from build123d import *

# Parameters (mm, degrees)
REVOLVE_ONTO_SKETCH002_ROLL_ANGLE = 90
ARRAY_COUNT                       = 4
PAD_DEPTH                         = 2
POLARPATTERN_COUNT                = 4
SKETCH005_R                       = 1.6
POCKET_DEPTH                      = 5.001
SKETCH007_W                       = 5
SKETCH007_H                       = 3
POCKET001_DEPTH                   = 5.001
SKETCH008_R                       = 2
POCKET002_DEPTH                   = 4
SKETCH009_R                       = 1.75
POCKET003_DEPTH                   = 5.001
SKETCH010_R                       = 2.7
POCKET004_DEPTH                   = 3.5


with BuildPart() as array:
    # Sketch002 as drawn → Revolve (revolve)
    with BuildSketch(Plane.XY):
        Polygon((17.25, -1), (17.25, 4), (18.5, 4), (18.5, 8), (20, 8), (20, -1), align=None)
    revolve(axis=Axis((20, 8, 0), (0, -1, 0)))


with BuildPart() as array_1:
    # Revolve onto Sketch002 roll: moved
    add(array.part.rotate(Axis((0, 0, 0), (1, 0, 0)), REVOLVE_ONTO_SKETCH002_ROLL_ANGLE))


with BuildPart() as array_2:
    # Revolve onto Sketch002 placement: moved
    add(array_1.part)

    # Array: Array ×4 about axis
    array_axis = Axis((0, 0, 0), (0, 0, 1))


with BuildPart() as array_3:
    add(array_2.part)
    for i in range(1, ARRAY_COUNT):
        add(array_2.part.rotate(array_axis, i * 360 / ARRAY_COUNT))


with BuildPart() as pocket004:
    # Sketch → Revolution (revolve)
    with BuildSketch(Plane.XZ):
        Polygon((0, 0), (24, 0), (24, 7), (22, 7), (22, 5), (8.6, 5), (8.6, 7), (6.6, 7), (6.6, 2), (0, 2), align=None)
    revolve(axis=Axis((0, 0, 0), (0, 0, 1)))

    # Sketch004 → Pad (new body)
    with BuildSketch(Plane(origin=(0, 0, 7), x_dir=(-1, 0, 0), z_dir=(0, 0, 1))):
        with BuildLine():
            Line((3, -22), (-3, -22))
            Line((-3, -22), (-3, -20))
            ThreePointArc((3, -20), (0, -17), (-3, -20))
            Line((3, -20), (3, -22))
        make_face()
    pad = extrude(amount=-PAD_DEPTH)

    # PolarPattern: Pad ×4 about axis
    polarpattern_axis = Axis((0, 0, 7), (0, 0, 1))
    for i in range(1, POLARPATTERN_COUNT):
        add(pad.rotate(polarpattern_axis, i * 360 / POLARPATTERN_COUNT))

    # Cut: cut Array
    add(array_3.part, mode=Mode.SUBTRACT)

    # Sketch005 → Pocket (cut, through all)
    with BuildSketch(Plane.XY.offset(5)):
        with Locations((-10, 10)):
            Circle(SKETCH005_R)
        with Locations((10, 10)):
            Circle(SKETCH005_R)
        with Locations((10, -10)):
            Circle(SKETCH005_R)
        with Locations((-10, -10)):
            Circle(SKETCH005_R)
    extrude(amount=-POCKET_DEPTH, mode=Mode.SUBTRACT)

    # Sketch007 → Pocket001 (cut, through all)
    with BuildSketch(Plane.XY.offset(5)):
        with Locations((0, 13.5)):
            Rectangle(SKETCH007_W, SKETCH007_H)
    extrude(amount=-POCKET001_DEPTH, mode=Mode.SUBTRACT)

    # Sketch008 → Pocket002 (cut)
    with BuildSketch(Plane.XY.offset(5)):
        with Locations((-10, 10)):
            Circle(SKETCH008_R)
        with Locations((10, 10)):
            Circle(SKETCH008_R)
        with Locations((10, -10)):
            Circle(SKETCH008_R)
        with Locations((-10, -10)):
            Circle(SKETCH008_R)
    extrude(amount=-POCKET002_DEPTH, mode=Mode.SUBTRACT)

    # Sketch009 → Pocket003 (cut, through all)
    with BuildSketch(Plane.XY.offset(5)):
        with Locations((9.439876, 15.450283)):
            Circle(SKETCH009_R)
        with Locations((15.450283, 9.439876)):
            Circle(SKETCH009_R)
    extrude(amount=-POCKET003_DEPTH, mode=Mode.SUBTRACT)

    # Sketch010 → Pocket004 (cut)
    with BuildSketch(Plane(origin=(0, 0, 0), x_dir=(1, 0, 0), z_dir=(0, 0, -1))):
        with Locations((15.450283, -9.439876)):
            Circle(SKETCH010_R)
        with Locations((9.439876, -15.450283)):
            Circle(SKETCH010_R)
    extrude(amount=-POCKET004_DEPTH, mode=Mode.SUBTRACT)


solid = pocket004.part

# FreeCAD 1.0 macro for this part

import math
import FreeCAD as App
import Part
import Sketcher


def add_polygon(sketch, points):
    """Adds a closed chain of lines whose ends are joined by coincident constraints."""
    first, n = sketch.GeometryCount, len(points)
    for a, b in zip(points, points[1:] + points[:1]):
        sketch.addGeometry(Part.LineSegment(App.Vector(*a, 0), App.Vector(*b, 0)), False)
    for i in range(n):
        sketch.addConstraint(Sketcher.Constraint("Coincident", first + i, 2, first + (i + 1) % n, 1))

doc = App.newDocument("Part")
params = doc.addObject("Spreadsheet::Sheet", "Params")
for row, (alias, value) in enumerate([
    ("sketch1_height", "5 mm"),
    ("sketch1_height2", "9 mm"),
    ("sketch1_width", "1.5 mm"),
    ("sketch1_width2", "2.75 mm"),
    ("revolution_angle", "360 deg"),
    ("sketch2_width", "24 mm"),
    ("sketch2_width2", "2 mm"),
    ("sketch2_height", "7 mm"),
    ("sketch2_width3", "13.4 mm"),
    ("revolution2_angle", "360 deg"),
    ("sketch3_radius", "3 mm"),
    ("sketch3_height", "2 mm"),
    ("pad1_length", "2 mm"),
    ("sketch4_diameter", "3.2 mm"),
    ("sketch5_width", "5 mm"),
    ("sketch5_height", "3 mm"),
    ("sketch6_diameter", "4 mm"),
    ("pocket3_length", "4 mm"),
    ("sketch7_diameter", "3.5 mm"),
    ("sketch8_diameter", "5.4 mm"),
    ("pocket5_length", "3.5 mm"),
], start=1):
    params.set(f"A{row}", alias)
    params.set(f"B{row}", "=" + value)
    params.setAlias(f"B{row}", alias)

body = doc.addObject("PartDesign::Body", "Body")

# Sketch on XY plane
sketch1 = body.newObject("Sketcher::SketchObject", "Sketch")
sketch1.AttachmentSupport = (doc.getObject("XY_Plane"), [""])
sketch1.MapMode = "FlatFace"
add_polygon(sketch1, [(17.25, 4), (17.25, -1), (20, -1), (20, 8), (18.5, 8), (18.5, 4)])  # lines 0-5
sketch1.addGeometry(Part.LineSegment(App.Vector(20, 8, 0), App.Vector(20, -1, 0)), True)  # axis
sketch1.addConstraint(Sketcher.Constraint("Vertical", 0))
sketch1.addConstraint(Sketcher.Constraint("Horizontal", 1))
sketch1.addConstraint(Sketcher.Constraint("Vertical", 2))
sketch1.addConstraint(Sketcher.Constraint("Horizontal", 3))
sketch1.addConstraint(Sketcher.Constraint("Vertical", 4))
sketch1.addConstraint(Sketcher.Constraint("Horizontal", 5))
sketch1.addConstraint(Sketcher.Constraint("Vertical", 6))
sketch1.addConstraint(Sketcher.Constraint("Coincident", 6, 1, 2, 2))
sketch1.addConstraint(Sketcher.Constraint("Horizontal", 0, 2, 6, 2))
sketch1.addConstraint(Sketcher.Constraint("DistanceY", 0, 2, 0, 1, 5.0))
sketch1.addConstraint(Sketcher.Constraint("DistanceY", 2, 1, 2, 2, 9.0))
sketch1.addConstraint(Sketcher.Constraint("DistanceX", 3, 2, 3, 1, 1.5))
sketch1.addConstraint(Sketcher.Constraint("DistanceY", 0, 2, -1, 1, 1.0))
sketch1.addConstraint(Sketcher.Constraint("DistanceX", -1, 1, 1, 2, 20.0))
sketch1.addConstraint(Sketcher.Constraint("DistanceX", 1, 1, 1, 2, 2.75))
sketch1.setExpression("Constraints[15]", "Params.sketch1_height")
sketch1.setExpression("Constraints[16]", "Params.sketch1_height2")
sketch1.setExpression("Constraints[17]", "Params.sketch1_width")
sketch1.setExpression("Constraints[20]", "Params.sketch1_width2")
revolution = body.newObject("PartDesign::Revolution", "Revolution")
revolution.Profile = sketch1
revolution.ReferenceAxis = (sketch1, ["Axis0"])
revolution.setExpression("Angle", "Params.revolution_angle")
body2 = doc.addObject("PartDesign::Body", "Body001")
doc.recompute()

body.Placement = App.Placement(App.Vector(0, 0, 0), App.Rotation(App.Vector(1, 0, 0), 90))
boolean = body2.newObject("PartDesign::Boolean", "Boolean")
boolean.Type = "Fuse"
boolean.addObjects([body])
body3 = doc.addObject("PartDesign::Body", "Body002")
body3.AllowCompound = True
doc.recompute()

body3.BaseFeature = body2
doc.recompute()

body4 = doc.addObject("PartDesign::Body", "Body003")
body4.BaseFeature = body2
body4.Placement = App.Placement(App.Vector(0, 0, 0), App.Rotation(App.Vector(0, 0, 1), 90))
boolean2 = body3.newObject("PartDesign::Boolean", "Boolean001")
boolean2.Type = "Fuse"
boolean2.addObjects([body4])
doc.recompute()

body5 = doc.addObject("PartDesign::Body", "Body004")
body5.BaseFeature = body2
body5.Placement = App.Placement(App.Vector(0, 0, 0), App.Rotation(App.Vector(0, 0, 1), 180))
boolean3 = body3.newObject("PartDesign::Boolean", "Boolean002")
boolean3.Type = "Fuse"
boolean3.addObjects([body5])
doc.recompute()

body2.Placement = App.Placement(App.Vector(0, 0, 0), App.Rotation(App.Vector(0, 0, 1), 270))
boolean4 = body3.newObject("PartDesign::Boolean", "Boolean003")
boolean4.Type = "Fuse"
boolean4.addObjects([body2])
body6 = doc.addObject("PartDesign::Body", "Body005")

# Sketch on XZ plane
sketch2 = body6.newObject("Sketcher::SketchObject", "Sketch001")
sketch2.AttachmentSupport = (doc.getObject("XZ_Plane005"), [""])
sketch2.MapMode = "FlatFace"
add_polygon(sketch2, [(0, 0), (24, 0), (24, 7), (22, 7), (22, 5), (8.6, 5), (8.6, 7), (6.6, 7), (6.6, 2), (0, 2)])  # lines 0-9
sketch2.addConstraint(Sketcher.Constraint("Horizontal", 0))
sketch2.addConstraint(Sketcher.Constraint("Vertical", 1))
sketch2.addConstraint(Sketcher.Constraint("Horizontal", 2))
sketch2.addConstraint(Sketcher.Constraint("Vertical", 3))
sketch2.addConstraint(Sketcher.Constraint("Horizontal", 4))
sketch2.addConstraint(Sketcher.Constraint("Vertical", 5))
sketch2.addConstraint(Sketcher.Constraint("Horizontal", 6))
sketch2.addConstraint(Sketcher.Constraint("Vertical", 7))
sketch2.addConstraint(Sketcher.Constraint("Horizontal", 8))
sketch2.addConstraint(Sketcher.Constraint("Vertical", 9))
sketch2.addConstraint(Sketcher.Constraint("Coincident", 9, 2, -1, 1))
sketch2.addConstraint(Sketcher.Constraint("Horizontal", 2, 2, 5, 2))
sketch2.addConstraint(Sketcher.Constraint("Equal", 2, 6))
sketch2.addConstraint(Sketcher.Constraint("Equal", 6, 3))
sketch2.addConstraint(Sketcher.Constraint("Equal", 5, 9))
sketch2.addConstraint(Sketcher.Constraint("DistanceX", 0, 1, 0, 2, 24.0))
sketch2.addConstraint(Sketcher.Constraint("DistanceX", 2, 2, 2, 1, 2.0))
sketch2.addConstraint(Sketcher.Constraint("DistanceY", 1, 1, 1, 2, 7.0))
sketch2.addConstraint(Sketcher.Constraint("DistanceX", 4, 2, 4, 1, 13.4))
sketch2.setExpression("Constraints[25]", "Params.sketch2_width")
sketch2.setExpression("Constraints[26]", "Params.sketch2_width2")
sketch2.setExpression("Constraints[27]", "Params.sketch2_height")
sketch2.setExpression("Constraints[28]", "Params.sketch2_width3")
revolution2 = body6.newObject("PartDesign::Revolution", "Revolution001")
revolution2.Profile = sketch2
revolution2.ReferenceAxis = (sketch2, ["V_Axis"])
revolution2.setExpression("Angle", "Params.revolution2_angle")

# Sketch on XY plane
sketch3 = body6.newObject("Sketcher::SketchObject", "Sketch002")
sketch3.AttachmentSupport = (doc.getObject("XY_Plane005"), [""])
sketch3.MapMode = "FlatFace"
sketch3.AttachmentOffset = App.Placement(App.Vector(0, 0, 7), App.Rotation())
sketch3.addGeometry(Part.LineSegment(App.Vector(3, 22, 0), App.Vector(-3, 22, 0)), False)
sketch3.addGeometry(Part.LineSegment(App.Vector(-3, 22, 0), App.Vector(-3, 20, 0)), False)
sketch3.addGeometry(Part.ArcOfCircle(Part.Circle(App.Vector(0, 20, 0), App.Vector(0, 0, 1), 3), math.radians(180), math.radians(360)), False)
sketch3.addGeometry(Part.LineSegment(App.Vector(3, 20, 0), App.Vector(3, 22, 0)), False)
sketch3.addConstraint(Sketcher.Constraint("Coincident", 0, 2, 1, 1))
sketch3.addConstraint(Sketcher.Constraint("Tangent", 1, 2, 2, 1))
sketch3.addConstraint(Sketcher.Constraint("Tangent", 2, 2, 3, 1))
sketch3.addConstraint(Sketcher.Constraint("Coincident", 3, 2, 0, 1))
sketch3.addConstraint(Sketcher.Constraint("Horizontal", 0))
sketch3.addConstraint(Sketcher.Constraint("Vertical", 1))
sketch3.addConstraint(Sketcher.Constraint("Vertical", 3))
sketch3.addConstraint(Sketcher.Constraint("PointOnObject", 2, 3, -2))
sketch3.addConstraint(Sketcher.Constraint("Radius", 2, 3.0))
sketch3.addConstraint(Sketcher.Constraint("DistanceY", 1, 2, 1, 1, 2.0))
sketch3.addConstraint(Sketcher.Constraint("DistanceY", -1, 1, 2, 3, 20.0))
sketch3.setExpression("Constraints[8]", "Params.sketch3_radius")
sketch3.setExpression("Constraints[9]", "Params.sketch3_height")
pad1 = body6.newObject("PartDesign::Pad", "Pad")
pad1.Profile = sketch3
pad1.setExpression("Length", "Params.pad1_length")
pad1.Reversed = True
doc.recompute()

polarpattern = body6.newObject("PartDesign::PolarPattern", "PolarPattern")
polarpattern.Originals = [pad1]
polarpattern.Axis = (doc.getObject("Z_Axis005"), [""])
polarpattern.Angle = 360
polarpattern.Occurrences = 4
body6.Tip = polarpattern
doc.recompute()

boolean5 = body6.newObject("PartDesign::Boolean", "Boolean004")
boolean5.Type = "Cut"
boolean5.addObjects([body3])

# Sketch on XY plane
sketch4 = body6.newObject("Sketcher::SketchObject", "Sketch003")
sketch4.AttachmentSupport = (doc.getObject("XY_Plane005"), [""])
sketch4.MapMode = "FlatFace"
sketch4.AttachmentOffset = App.Placement(App.Vector(0, 0, 5), App.Rotation())
sketch4.addGeometry(Part.Circle(App.Vector(-10, 10, 0), App.Vector(0, 0, 1), 1.6), False)
sketch4.addGeometry(Part.Circle(App.Vector(10, 10, 0), App.Vector(0, 0, 1), 1.6), False)
sketch4.addGeometry(Part.Circle(App.Vector(10, -10, 0), App.Vector(0, 0, 1), 1.6), False)
sketch4.addGeometry(Part.Circle(App.Vector(-10, -10, 0), App.Vector(0, 0, 1), 1.6), False)
sketch4.addConstraint(Sketcher.Constraint("Equal", 0, 1))
sketch4.addConstraint(Sketcher.Constraint("Equal", 1, 2))
sketch4.addConstraint(Sketcher.Constraint("Equal", 2, 3))
sketch4.addConstraint(Sketcher.Constraint("Symmetric", 0, 3, 2, 3, -1, 1))
sketch4.addConstraint(Sketcher.Constraint("Symmetric", 1, 3, 3, 3, -1, 1))
sketch4.addConstraint(Sketcher.Constraint("Symmetric", 0, 3, 1, 3, -2))
sketch4.addConstraint(Sketcher.Constraint("Diameter", 0, 3.2))
sketch4.addConstraint(Sketcher.Constraint("DistanceX", 0, 3, -1, 1, 10.0))
sketch4.addConstraint(Sketcher.Constraint("DistanceY", -1, 1, 0, 3, 10.0))
sketch4.setExpression("Constraints[6]", "Params.sketch4_diameter")
pocket1 = body6.newObject("PartDesign::Pocket", "Pocket")
pocket1.Profile = sketch4
pocket1.Type = "ThroughAll"

# Sketch on XY plane
sketch5 = body6.newObject("Sketcher::SketchObject", "Sketch004")
sketch5.AttachmentSupport = (doc.getObject("XY_Plane005"), [""])
sketch5.MapMode = "FlatFace"
sketch5.AttachmentOffset = App.Placement(App.Vector(0, 0, 5), App.Rotation())
add_polygon(sketch5, [(-2.5, 15), (-2.5, 12), (2.5, 12), (2.5, 15)])  # lines 0-3
sketch5.addConstraint(Sketcher.Constraint("Vertical", 0))
sketch5.addConstraint(Sketcher.Constraint("Horizontal", 1))
sketch5.addConstraint(Sketcher.Constraint("Vertical", 2))
sketch5.addConstraint(Sketcher.Constraint("Horizontal", 3))
sketch5.addConstraint(Sketcher.Constraint("DistanceX", 1, 1, 1, 2, 5.0))
sketch5.addConstraint(Sketcher.Constraint("DistanceY", 0, 2, 0, 1, 3.0))
sketch5.addConstraint(Sketcher.Constraint("DistanceY", -1, 1, 0, 2, 12.0))
sketch5.addConstraint(Sketcher.Constraint("DistanceX", 0, 2, -1, 1, 2.5))
sketch5.setExpression("Constraints[8]", "Params.sketch5_width")
sketch5.setExpression("Constraints[9]", "Params.sketch5_height")
pocket2 = body6.newObject("PartDesign::Pocket", "Pocket001")
pocket2.Profile = sketch5
pocket2.Type = "ThroughAll"

# Sketch on XY plane
sketch6 = body6.newObject("Sketcher::SketchObject", "Sketch005")
sketch6.AttachmentSupport = (doc.getObject("XY_Plane005"), [""])
sketch6.MapMode = "FlatFace"
sketch6.AttachmentOffset = App.Placement(App.Vector(0, 0, 5), App.Rotation())
sketch6.addGeometry(Part.Circle(App.Vector(-10, 10, 0), App.Vector(0, 0, 1), 2), False)
sketch6.addGeometry(Part.Circle(App.Vector(10, 10, 0), App.Vector(0, 0, 1), 2), False)
sketch6.addGeometry(Part.Circle(App.Vector(10, -10, 0), App.Vector(0, 0, 1), 2), False)
sketch6.addGeometry(Part.Circle(App.Vector(-10, -10, 0), App.Vector(0, 0, 1), 2), False)
sketch6.addConstraint(Sketcher.Constraint("Equal", 0, 1))
sketch6.addConstraint(Sketcher.Constraint("Equal", 1, 2))
sketch6.addConstraint(Sketcher.Constraint("Equal", 2, 3))
sketch6.addConstraint(Sketcher.Constraint("Symmetric", 0, 3, 2, 3, -1, 1))
sketch6.addConstraint(Sketcher.Constraint("Symmetric", 1, 3, 3, 3, -1, 1))
sketch6.addConstraint(Sketcher.Constraint("Symmetric", 0, 3, 1, 3, -2))
sketch6.addConstraint(Sketcher.Constraint("Diameter", 0, 4.0))
sketch6.addConstraint(Sketcher.Constraint("DistanceX", 0, 3, -1, 1, 10.0))
sketch6.addConstraint(Sketcher.Constraint("DistanceY", -1, 1, 0, 3, 10.0))
sketch6.setExpression("Constraints[6]", "Params.sketch6_diameter")
pocket3 = body6.newObject("PartDesign::Pocket", "Pocket002")
pocket3.Profile = sketch6
pocket3.setExpression("Length", "Params.pocket3_length")

# Sketch on XY plane
sketch7 = body6.newObject("Sketcher::SketchObject", "Sketch006")
sketch7.AttachmentSupport = (doc.getObject("XY_Plane005"), [""])
sketch7.MapMode = "FlatFace"
sketch7.AttachmentOffset = App.Placement(App.Vector(0, 0, 5), App.Rotation())
sketch7.addGeometry(Part.Circle(App.Vector(9.439876, 15.450283, 0), App.Vector(0, 0, 1), 1.75), False)
sketch7.addGeometry(Part.Circle(App.Vector(15.450283, 9.439876, 0), App.Vector(0, 0, 1), 1.75), False)
sketch7.addConstraint(Sketcher.Constraint("Equal", 0, 1))
sketch7.addConstraint(Sketcher.Constraint("Diameter", 0, 3.5))
sketch7.addConstraint(Sketcher.Constraint("DistanceX", -1, 1, 0, 3, 9.439876))
sketch7.addConstraint(Sketcher.Constraint("DistanceY", -1, 1, 0, 3, 15.450283))
sketch7.addConstraint(Sketcher.Constraint("DistanceX", -1, 1, 1, 3, 15.450283))
sketch7.addConstraint(Sketcher.Constraint("DistanceY", -1, 1, 1, 3, 9.439876))
sketch7.setExpression("Constraints[1]", "Params.sketch7_diameter")
pocket4 = body6.newObject("PartDesign::Pocket", "Pocket003")
pocket4.Profile = sketch7
pocket4.Type = "ThroughAll"

# Sketch on XY plane
sketch8 = body6.newObject("Sketcher::SketchObject", "Sketch007")
sketch8.AttachmentSupport = (doc.getObject("XY_Plane005"), [""])
sketch8.MapMode = "FlatFace"
sketch8.addGeometry(Part.Circle(App.Vector(15.450283, 9.439876, 0), App.Vector(0, 0, 1), 2.7), False)
sketch8.addGeometry(Part.Circle(App.Vector(9.439876, 15.450283, 0), App.Vector(0, 0, 1), 2.7), False)
sketch8.addConstraint(Sketcher.Constraint("Equal", 0, 1))
sketch8.addConstraint(Sketcher.Constraint("Diameter", 0, 5.4))
sketch8.addConstraint(Sketcher.Constraint("DistanceX", -1, 1, 0, 3, 15.450283))
sketch8.addConstraint(Sketcher.Constraint("DistanceY", -1, 1, 0, 3, 9.439876))
sketch8.addConstraint(Sketcher.Constraint("DistanceX", -1, 1, 1, 3, 9.439876))
sketch8.addConstraint(Sketcher.Constraint("DistanceY", -1, 1, 1, 3, 15.450283))
sketch8.setExpression("Constraints[1]", "Params.sketch8_diameter")
pocket5 = body6.newObject("PartDesign::Pocket", "Pocket004")
pocket5.Profile = sketch8
pocket5.setExpression("Length", "Params.pocket5_length")
pocket5.Reversed = True

doc.recompute()
